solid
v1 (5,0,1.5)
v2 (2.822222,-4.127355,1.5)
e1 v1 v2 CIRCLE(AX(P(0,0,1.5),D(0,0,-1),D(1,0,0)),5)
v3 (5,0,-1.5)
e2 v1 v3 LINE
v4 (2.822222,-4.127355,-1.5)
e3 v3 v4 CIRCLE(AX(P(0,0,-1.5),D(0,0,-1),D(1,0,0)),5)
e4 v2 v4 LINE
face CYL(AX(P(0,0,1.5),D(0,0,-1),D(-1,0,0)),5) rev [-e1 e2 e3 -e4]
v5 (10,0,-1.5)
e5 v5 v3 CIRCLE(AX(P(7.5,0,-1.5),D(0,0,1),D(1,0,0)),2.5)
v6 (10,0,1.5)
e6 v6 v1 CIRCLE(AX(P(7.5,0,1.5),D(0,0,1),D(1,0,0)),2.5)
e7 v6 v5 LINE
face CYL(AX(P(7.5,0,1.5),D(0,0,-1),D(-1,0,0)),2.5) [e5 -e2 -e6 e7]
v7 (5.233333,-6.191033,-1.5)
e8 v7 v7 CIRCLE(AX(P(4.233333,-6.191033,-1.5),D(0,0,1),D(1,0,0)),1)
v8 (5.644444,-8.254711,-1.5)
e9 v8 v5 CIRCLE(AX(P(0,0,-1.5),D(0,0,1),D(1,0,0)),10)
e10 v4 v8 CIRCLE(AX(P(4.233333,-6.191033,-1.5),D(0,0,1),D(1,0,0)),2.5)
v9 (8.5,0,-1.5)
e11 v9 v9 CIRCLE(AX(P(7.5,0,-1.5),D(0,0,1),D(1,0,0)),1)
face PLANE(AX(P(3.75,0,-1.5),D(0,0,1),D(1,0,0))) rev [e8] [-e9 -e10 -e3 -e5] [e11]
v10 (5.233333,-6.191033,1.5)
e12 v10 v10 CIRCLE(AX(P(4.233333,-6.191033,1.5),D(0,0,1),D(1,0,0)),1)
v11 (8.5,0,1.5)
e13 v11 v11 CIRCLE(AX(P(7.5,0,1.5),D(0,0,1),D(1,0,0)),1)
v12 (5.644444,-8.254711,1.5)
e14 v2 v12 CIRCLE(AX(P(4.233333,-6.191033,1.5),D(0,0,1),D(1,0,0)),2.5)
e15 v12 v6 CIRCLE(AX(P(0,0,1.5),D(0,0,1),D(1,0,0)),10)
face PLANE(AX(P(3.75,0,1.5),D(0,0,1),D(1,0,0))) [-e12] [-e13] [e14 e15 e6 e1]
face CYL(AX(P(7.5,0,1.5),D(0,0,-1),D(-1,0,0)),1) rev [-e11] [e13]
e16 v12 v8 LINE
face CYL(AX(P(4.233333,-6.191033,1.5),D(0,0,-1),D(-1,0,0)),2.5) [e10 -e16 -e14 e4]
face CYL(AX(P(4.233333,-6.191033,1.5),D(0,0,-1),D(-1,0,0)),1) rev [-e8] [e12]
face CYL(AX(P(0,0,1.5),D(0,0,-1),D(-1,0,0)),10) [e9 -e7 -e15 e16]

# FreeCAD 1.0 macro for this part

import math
import FreeCAD as App
import Part
import Sketcher

V = App.Vector

doc = App.newDocument("Part")
body = doc.addObject("PartDesign::Body", "Body")

# Sketch on XY plane
sketch1 = doc.addObject("Sketcher::SketchObject", "Sketch")
body.addObject(sketch1)
sketch1.AttachmentSupport = (doc.XY_Plane, [""])
sketch1.MapMode = "FlatFace"
sketch1.addGeometry(Part.ArcOfCircle(Part.Circle(V(0, 0, 0), V(0, 0, 1), 10), math.radians(-56), math.radians(0)), False)
sketch1.addGeometry(Part.ArcOfCircle(Part.Circle(V(7.5, 0, 0), V(0, 0, 1), 2.5), math.radians(0), math.radians(180)), False)
sketch1.addGeometry(Part.ArcOfCircle(Part.Circle(V(0, 0, 0), V(0, 0, 1), 5), math.radians(-56), math.radians(0)), False)
sketch1.addGeometry(Part.ArcOfCircle(Part.Circle(V(4.2, -6.2, 0), V(0, 0, 1), 2.5), math.radians(124), math.radians(304)), False)
sketch1.addGeometry(Part.Circle(V(4.2, -6.2, 0), V(0, 0, 1), 1), False)
sketch1.addGeometry(Part.Circle(V(7.5, 0, 0), V(0, 0, 1), 1), False)
sketch1.addConstraint(Sketcher.Constraint("Tangent", 0, 2, 1, 1))
sketch1.addConstraint(Sketcher.Constraint("Tangent", 1, 2, 2, 2))
sketch1.addConstraint(Sketcher.Constraint("Tangent", 2, 1, 3, 1))
sketch1.addConstraint(Sketcher.Constraint("Tangent", 3, 2, 0, 1))
sketch1.addConstraint(Sketcher.Constraint("Coincident", 0, 3, -1, 1))
sketch1.addConstraint(Sketcher.Constraint("Coincident", 2, 3, -1, 1))
sketch1.addConstraint(Sketcher.Constraint("Coincident", 4, 3, 3, 3))
sketch1.addConstraint(Sketcher.Constraint("Coincident", 5, 3, 1, 3))
sketch1.addConstraint(Sketcher.Constraint("Equal", 4, 5))
sketch1.addConstraint(Sketcher.Constraint("PointOnObject", 1, 3, -1))
sketch1.addConstraint(Sketcher.Constraint("Diameter", 4, 2.0))
sketch1.addConstraint(Sketcher.Constraint("Radius", 0, 10.0))
sketch1.addConstraint(Sketcher.Constraint("Radius", 2, 5.0))
sketch1.addConstraint(Sketcher.Constraint("DistanceY", 3, 2, -1, 1, 8.254711))
pad1 = doc.addObject("PartDesign::Pad", "Pad")
body.addObject(pad1)
pad1.Profile = sketch1
pad1.Length = 3
pad1.Midplane = True

doc.recompute()
